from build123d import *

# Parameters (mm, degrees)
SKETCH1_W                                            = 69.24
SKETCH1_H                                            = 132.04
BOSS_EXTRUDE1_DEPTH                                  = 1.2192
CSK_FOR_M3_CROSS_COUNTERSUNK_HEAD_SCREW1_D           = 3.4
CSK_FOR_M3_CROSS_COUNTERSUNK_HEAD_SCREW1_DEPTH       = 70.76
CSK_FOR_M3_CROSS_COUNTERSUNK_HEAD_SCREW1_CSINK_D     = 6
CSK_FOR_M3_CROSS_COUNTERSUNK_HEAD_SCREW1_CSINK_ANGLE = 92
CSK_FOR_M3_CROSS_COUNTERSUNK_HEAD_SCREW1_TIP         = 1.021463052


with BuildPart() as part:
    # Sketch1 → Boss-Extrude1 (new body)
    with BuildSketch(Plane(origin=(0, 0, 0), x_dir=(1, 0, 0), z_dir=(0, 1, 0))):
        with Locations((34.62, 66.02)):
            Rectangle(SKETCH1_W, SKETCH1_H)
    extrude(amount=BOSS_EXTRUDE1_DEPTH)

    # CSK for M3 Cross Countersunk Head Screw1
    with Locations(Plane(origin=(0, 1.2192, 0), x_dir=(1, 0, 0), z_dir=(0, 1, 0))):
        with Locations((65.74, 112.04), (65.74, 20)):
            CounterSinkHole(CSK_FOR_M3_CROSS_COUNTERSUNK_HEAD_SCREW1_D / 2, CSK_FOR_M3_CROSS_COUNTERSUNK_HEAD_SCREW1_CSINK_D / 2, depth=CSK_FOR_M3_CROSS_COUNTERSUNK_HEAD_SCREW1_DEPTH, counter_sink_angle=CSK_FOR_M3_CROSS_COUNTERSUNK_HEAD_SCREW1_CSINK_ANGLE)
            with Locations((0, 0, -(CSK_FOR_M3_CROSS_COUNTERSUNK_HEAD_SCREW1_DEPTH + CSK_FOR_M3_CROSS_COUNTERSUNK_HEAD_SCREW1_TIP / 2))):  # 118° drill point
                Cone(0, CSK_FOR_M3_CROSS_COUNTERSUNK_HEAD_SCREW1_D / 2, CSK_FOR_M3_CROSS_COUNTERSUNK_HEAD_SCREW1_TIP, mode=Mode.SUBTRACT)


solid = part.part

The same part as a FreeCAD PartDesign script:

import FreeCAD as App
import Part
import Sketcher
from FreeCAD import Vector

doc = App.newDocument("Part")
body = doc.addObject("PartDesign::Body", "Body")

sketch1 = doc.addObject("Sketcher::SketchObject", "Sketch")
body.addObject(sketch1)
sketch1.AttachmentSupport = (doc.XZ_Plane, [""])
sketch1.MapMode = "FlatFace"
sketch1.addGeometry([
    Part.LineSegment(Vector(0, -132.04, 0), Vector(0, 0, 0)),
    Part.LineSegment(Vector(0, 0, 0), Vector(69.24, 0, 0)),
    Part.LineSegment(Vector(69.24, 0, 0), Vector(69.24, -132.04, 0)),
    Part.LineSegment(Vector(69.24, -132.04, 0), Vector(0, -132.04, 0)),
], False)
sketch1.addConstraint([
    Sketcher.Constraint("Coincident", 0, 2, 1, 1),
    Sketcher.Constraint("Coincident", 1, 2, 2, 1),
    Sketcher.Constraint("Coincident", 2, 2, 3, 1),
    Sketcher.Constraint("Coincident", 3, 2, 0, 1),
    Sketcher.Constraint("Vertical", 0),
    Sketcher.Constraint("Horizontal", 1),
    Sketcher.Constraint("Vertical", 2),
    Sketcher.Constraint("Horizontal", 3),
    Sketcher.Constraint("Coincident", 0, 2, -1, 1),
    Sketcher.Constraint("DistanceX", 1, 1, 1, 2, 69.24),
    Sketcher.Constraint("DistanceY", 0, 1, 0, 2, 132.04),
])
pad1 = doc.addObject("PartDesign::Pad", "Pad")
body.addObject(pad1)
pad1.Profile = sketch1
pad1.Length = 1.2192
pad1.Reversed = True

sketch2 = doc.addObject("Sketcher::SketchObject", "Sketch001")
body.addObject(sketch2)
sketch2.AttachmentSupport = (doc.XZ_Plane, [""])
sketch2.MapMode = "FlatFace"
sketch2.AttachmentOffset = App.Placement(Vector(0, 0, -1.2192), App.Rotation())
sketch2.addGeometry([
    Part.Circle(Vector(65.74, -112.04, 0), Vector(0, 0, 1), 1.7),
    Part.Circle(Vector(65.74, -20, 0), Vector(0, 0, 1), 1.7),
], False)
sketch2.addConstraint([
    Sketcher.Constraint("Equal", 0, 1),
    Sketcher.Constraint("Vertical", 0, 3, 1, 3),
    Sketcher.Constraint("Diameter", 0, 3.4),
    Sketcher.Constraint("DistanceY", 1, 3, -1, 1, 20.0),
    Sketcher.Constraint("DistanceX", -1, 1, 0, 3, 65.74),
    Sketcher.Constraint("DistanceY", 0, 3, -1, 1, 112.04),
])
doc.recompute()
hole = doc.addObject("PartDesign::Hole", "Hole")
body.addObject(hole)
hole.Profile = sketch2
hole.ThreadType = "None"
hole.Diameter = 3.4
hole.DepthType = "Dimension"
hole.Depth = 70.76
hole.DrillPoint = "Angled"
hole.DrillPointAngle = 118
hole.HoleCutType = "Countersink"
hole.HoleCutDiameter = 6
hole.HoleCutCountersinkAngle = 92
hole.Reversed = True

doc.recompute()
